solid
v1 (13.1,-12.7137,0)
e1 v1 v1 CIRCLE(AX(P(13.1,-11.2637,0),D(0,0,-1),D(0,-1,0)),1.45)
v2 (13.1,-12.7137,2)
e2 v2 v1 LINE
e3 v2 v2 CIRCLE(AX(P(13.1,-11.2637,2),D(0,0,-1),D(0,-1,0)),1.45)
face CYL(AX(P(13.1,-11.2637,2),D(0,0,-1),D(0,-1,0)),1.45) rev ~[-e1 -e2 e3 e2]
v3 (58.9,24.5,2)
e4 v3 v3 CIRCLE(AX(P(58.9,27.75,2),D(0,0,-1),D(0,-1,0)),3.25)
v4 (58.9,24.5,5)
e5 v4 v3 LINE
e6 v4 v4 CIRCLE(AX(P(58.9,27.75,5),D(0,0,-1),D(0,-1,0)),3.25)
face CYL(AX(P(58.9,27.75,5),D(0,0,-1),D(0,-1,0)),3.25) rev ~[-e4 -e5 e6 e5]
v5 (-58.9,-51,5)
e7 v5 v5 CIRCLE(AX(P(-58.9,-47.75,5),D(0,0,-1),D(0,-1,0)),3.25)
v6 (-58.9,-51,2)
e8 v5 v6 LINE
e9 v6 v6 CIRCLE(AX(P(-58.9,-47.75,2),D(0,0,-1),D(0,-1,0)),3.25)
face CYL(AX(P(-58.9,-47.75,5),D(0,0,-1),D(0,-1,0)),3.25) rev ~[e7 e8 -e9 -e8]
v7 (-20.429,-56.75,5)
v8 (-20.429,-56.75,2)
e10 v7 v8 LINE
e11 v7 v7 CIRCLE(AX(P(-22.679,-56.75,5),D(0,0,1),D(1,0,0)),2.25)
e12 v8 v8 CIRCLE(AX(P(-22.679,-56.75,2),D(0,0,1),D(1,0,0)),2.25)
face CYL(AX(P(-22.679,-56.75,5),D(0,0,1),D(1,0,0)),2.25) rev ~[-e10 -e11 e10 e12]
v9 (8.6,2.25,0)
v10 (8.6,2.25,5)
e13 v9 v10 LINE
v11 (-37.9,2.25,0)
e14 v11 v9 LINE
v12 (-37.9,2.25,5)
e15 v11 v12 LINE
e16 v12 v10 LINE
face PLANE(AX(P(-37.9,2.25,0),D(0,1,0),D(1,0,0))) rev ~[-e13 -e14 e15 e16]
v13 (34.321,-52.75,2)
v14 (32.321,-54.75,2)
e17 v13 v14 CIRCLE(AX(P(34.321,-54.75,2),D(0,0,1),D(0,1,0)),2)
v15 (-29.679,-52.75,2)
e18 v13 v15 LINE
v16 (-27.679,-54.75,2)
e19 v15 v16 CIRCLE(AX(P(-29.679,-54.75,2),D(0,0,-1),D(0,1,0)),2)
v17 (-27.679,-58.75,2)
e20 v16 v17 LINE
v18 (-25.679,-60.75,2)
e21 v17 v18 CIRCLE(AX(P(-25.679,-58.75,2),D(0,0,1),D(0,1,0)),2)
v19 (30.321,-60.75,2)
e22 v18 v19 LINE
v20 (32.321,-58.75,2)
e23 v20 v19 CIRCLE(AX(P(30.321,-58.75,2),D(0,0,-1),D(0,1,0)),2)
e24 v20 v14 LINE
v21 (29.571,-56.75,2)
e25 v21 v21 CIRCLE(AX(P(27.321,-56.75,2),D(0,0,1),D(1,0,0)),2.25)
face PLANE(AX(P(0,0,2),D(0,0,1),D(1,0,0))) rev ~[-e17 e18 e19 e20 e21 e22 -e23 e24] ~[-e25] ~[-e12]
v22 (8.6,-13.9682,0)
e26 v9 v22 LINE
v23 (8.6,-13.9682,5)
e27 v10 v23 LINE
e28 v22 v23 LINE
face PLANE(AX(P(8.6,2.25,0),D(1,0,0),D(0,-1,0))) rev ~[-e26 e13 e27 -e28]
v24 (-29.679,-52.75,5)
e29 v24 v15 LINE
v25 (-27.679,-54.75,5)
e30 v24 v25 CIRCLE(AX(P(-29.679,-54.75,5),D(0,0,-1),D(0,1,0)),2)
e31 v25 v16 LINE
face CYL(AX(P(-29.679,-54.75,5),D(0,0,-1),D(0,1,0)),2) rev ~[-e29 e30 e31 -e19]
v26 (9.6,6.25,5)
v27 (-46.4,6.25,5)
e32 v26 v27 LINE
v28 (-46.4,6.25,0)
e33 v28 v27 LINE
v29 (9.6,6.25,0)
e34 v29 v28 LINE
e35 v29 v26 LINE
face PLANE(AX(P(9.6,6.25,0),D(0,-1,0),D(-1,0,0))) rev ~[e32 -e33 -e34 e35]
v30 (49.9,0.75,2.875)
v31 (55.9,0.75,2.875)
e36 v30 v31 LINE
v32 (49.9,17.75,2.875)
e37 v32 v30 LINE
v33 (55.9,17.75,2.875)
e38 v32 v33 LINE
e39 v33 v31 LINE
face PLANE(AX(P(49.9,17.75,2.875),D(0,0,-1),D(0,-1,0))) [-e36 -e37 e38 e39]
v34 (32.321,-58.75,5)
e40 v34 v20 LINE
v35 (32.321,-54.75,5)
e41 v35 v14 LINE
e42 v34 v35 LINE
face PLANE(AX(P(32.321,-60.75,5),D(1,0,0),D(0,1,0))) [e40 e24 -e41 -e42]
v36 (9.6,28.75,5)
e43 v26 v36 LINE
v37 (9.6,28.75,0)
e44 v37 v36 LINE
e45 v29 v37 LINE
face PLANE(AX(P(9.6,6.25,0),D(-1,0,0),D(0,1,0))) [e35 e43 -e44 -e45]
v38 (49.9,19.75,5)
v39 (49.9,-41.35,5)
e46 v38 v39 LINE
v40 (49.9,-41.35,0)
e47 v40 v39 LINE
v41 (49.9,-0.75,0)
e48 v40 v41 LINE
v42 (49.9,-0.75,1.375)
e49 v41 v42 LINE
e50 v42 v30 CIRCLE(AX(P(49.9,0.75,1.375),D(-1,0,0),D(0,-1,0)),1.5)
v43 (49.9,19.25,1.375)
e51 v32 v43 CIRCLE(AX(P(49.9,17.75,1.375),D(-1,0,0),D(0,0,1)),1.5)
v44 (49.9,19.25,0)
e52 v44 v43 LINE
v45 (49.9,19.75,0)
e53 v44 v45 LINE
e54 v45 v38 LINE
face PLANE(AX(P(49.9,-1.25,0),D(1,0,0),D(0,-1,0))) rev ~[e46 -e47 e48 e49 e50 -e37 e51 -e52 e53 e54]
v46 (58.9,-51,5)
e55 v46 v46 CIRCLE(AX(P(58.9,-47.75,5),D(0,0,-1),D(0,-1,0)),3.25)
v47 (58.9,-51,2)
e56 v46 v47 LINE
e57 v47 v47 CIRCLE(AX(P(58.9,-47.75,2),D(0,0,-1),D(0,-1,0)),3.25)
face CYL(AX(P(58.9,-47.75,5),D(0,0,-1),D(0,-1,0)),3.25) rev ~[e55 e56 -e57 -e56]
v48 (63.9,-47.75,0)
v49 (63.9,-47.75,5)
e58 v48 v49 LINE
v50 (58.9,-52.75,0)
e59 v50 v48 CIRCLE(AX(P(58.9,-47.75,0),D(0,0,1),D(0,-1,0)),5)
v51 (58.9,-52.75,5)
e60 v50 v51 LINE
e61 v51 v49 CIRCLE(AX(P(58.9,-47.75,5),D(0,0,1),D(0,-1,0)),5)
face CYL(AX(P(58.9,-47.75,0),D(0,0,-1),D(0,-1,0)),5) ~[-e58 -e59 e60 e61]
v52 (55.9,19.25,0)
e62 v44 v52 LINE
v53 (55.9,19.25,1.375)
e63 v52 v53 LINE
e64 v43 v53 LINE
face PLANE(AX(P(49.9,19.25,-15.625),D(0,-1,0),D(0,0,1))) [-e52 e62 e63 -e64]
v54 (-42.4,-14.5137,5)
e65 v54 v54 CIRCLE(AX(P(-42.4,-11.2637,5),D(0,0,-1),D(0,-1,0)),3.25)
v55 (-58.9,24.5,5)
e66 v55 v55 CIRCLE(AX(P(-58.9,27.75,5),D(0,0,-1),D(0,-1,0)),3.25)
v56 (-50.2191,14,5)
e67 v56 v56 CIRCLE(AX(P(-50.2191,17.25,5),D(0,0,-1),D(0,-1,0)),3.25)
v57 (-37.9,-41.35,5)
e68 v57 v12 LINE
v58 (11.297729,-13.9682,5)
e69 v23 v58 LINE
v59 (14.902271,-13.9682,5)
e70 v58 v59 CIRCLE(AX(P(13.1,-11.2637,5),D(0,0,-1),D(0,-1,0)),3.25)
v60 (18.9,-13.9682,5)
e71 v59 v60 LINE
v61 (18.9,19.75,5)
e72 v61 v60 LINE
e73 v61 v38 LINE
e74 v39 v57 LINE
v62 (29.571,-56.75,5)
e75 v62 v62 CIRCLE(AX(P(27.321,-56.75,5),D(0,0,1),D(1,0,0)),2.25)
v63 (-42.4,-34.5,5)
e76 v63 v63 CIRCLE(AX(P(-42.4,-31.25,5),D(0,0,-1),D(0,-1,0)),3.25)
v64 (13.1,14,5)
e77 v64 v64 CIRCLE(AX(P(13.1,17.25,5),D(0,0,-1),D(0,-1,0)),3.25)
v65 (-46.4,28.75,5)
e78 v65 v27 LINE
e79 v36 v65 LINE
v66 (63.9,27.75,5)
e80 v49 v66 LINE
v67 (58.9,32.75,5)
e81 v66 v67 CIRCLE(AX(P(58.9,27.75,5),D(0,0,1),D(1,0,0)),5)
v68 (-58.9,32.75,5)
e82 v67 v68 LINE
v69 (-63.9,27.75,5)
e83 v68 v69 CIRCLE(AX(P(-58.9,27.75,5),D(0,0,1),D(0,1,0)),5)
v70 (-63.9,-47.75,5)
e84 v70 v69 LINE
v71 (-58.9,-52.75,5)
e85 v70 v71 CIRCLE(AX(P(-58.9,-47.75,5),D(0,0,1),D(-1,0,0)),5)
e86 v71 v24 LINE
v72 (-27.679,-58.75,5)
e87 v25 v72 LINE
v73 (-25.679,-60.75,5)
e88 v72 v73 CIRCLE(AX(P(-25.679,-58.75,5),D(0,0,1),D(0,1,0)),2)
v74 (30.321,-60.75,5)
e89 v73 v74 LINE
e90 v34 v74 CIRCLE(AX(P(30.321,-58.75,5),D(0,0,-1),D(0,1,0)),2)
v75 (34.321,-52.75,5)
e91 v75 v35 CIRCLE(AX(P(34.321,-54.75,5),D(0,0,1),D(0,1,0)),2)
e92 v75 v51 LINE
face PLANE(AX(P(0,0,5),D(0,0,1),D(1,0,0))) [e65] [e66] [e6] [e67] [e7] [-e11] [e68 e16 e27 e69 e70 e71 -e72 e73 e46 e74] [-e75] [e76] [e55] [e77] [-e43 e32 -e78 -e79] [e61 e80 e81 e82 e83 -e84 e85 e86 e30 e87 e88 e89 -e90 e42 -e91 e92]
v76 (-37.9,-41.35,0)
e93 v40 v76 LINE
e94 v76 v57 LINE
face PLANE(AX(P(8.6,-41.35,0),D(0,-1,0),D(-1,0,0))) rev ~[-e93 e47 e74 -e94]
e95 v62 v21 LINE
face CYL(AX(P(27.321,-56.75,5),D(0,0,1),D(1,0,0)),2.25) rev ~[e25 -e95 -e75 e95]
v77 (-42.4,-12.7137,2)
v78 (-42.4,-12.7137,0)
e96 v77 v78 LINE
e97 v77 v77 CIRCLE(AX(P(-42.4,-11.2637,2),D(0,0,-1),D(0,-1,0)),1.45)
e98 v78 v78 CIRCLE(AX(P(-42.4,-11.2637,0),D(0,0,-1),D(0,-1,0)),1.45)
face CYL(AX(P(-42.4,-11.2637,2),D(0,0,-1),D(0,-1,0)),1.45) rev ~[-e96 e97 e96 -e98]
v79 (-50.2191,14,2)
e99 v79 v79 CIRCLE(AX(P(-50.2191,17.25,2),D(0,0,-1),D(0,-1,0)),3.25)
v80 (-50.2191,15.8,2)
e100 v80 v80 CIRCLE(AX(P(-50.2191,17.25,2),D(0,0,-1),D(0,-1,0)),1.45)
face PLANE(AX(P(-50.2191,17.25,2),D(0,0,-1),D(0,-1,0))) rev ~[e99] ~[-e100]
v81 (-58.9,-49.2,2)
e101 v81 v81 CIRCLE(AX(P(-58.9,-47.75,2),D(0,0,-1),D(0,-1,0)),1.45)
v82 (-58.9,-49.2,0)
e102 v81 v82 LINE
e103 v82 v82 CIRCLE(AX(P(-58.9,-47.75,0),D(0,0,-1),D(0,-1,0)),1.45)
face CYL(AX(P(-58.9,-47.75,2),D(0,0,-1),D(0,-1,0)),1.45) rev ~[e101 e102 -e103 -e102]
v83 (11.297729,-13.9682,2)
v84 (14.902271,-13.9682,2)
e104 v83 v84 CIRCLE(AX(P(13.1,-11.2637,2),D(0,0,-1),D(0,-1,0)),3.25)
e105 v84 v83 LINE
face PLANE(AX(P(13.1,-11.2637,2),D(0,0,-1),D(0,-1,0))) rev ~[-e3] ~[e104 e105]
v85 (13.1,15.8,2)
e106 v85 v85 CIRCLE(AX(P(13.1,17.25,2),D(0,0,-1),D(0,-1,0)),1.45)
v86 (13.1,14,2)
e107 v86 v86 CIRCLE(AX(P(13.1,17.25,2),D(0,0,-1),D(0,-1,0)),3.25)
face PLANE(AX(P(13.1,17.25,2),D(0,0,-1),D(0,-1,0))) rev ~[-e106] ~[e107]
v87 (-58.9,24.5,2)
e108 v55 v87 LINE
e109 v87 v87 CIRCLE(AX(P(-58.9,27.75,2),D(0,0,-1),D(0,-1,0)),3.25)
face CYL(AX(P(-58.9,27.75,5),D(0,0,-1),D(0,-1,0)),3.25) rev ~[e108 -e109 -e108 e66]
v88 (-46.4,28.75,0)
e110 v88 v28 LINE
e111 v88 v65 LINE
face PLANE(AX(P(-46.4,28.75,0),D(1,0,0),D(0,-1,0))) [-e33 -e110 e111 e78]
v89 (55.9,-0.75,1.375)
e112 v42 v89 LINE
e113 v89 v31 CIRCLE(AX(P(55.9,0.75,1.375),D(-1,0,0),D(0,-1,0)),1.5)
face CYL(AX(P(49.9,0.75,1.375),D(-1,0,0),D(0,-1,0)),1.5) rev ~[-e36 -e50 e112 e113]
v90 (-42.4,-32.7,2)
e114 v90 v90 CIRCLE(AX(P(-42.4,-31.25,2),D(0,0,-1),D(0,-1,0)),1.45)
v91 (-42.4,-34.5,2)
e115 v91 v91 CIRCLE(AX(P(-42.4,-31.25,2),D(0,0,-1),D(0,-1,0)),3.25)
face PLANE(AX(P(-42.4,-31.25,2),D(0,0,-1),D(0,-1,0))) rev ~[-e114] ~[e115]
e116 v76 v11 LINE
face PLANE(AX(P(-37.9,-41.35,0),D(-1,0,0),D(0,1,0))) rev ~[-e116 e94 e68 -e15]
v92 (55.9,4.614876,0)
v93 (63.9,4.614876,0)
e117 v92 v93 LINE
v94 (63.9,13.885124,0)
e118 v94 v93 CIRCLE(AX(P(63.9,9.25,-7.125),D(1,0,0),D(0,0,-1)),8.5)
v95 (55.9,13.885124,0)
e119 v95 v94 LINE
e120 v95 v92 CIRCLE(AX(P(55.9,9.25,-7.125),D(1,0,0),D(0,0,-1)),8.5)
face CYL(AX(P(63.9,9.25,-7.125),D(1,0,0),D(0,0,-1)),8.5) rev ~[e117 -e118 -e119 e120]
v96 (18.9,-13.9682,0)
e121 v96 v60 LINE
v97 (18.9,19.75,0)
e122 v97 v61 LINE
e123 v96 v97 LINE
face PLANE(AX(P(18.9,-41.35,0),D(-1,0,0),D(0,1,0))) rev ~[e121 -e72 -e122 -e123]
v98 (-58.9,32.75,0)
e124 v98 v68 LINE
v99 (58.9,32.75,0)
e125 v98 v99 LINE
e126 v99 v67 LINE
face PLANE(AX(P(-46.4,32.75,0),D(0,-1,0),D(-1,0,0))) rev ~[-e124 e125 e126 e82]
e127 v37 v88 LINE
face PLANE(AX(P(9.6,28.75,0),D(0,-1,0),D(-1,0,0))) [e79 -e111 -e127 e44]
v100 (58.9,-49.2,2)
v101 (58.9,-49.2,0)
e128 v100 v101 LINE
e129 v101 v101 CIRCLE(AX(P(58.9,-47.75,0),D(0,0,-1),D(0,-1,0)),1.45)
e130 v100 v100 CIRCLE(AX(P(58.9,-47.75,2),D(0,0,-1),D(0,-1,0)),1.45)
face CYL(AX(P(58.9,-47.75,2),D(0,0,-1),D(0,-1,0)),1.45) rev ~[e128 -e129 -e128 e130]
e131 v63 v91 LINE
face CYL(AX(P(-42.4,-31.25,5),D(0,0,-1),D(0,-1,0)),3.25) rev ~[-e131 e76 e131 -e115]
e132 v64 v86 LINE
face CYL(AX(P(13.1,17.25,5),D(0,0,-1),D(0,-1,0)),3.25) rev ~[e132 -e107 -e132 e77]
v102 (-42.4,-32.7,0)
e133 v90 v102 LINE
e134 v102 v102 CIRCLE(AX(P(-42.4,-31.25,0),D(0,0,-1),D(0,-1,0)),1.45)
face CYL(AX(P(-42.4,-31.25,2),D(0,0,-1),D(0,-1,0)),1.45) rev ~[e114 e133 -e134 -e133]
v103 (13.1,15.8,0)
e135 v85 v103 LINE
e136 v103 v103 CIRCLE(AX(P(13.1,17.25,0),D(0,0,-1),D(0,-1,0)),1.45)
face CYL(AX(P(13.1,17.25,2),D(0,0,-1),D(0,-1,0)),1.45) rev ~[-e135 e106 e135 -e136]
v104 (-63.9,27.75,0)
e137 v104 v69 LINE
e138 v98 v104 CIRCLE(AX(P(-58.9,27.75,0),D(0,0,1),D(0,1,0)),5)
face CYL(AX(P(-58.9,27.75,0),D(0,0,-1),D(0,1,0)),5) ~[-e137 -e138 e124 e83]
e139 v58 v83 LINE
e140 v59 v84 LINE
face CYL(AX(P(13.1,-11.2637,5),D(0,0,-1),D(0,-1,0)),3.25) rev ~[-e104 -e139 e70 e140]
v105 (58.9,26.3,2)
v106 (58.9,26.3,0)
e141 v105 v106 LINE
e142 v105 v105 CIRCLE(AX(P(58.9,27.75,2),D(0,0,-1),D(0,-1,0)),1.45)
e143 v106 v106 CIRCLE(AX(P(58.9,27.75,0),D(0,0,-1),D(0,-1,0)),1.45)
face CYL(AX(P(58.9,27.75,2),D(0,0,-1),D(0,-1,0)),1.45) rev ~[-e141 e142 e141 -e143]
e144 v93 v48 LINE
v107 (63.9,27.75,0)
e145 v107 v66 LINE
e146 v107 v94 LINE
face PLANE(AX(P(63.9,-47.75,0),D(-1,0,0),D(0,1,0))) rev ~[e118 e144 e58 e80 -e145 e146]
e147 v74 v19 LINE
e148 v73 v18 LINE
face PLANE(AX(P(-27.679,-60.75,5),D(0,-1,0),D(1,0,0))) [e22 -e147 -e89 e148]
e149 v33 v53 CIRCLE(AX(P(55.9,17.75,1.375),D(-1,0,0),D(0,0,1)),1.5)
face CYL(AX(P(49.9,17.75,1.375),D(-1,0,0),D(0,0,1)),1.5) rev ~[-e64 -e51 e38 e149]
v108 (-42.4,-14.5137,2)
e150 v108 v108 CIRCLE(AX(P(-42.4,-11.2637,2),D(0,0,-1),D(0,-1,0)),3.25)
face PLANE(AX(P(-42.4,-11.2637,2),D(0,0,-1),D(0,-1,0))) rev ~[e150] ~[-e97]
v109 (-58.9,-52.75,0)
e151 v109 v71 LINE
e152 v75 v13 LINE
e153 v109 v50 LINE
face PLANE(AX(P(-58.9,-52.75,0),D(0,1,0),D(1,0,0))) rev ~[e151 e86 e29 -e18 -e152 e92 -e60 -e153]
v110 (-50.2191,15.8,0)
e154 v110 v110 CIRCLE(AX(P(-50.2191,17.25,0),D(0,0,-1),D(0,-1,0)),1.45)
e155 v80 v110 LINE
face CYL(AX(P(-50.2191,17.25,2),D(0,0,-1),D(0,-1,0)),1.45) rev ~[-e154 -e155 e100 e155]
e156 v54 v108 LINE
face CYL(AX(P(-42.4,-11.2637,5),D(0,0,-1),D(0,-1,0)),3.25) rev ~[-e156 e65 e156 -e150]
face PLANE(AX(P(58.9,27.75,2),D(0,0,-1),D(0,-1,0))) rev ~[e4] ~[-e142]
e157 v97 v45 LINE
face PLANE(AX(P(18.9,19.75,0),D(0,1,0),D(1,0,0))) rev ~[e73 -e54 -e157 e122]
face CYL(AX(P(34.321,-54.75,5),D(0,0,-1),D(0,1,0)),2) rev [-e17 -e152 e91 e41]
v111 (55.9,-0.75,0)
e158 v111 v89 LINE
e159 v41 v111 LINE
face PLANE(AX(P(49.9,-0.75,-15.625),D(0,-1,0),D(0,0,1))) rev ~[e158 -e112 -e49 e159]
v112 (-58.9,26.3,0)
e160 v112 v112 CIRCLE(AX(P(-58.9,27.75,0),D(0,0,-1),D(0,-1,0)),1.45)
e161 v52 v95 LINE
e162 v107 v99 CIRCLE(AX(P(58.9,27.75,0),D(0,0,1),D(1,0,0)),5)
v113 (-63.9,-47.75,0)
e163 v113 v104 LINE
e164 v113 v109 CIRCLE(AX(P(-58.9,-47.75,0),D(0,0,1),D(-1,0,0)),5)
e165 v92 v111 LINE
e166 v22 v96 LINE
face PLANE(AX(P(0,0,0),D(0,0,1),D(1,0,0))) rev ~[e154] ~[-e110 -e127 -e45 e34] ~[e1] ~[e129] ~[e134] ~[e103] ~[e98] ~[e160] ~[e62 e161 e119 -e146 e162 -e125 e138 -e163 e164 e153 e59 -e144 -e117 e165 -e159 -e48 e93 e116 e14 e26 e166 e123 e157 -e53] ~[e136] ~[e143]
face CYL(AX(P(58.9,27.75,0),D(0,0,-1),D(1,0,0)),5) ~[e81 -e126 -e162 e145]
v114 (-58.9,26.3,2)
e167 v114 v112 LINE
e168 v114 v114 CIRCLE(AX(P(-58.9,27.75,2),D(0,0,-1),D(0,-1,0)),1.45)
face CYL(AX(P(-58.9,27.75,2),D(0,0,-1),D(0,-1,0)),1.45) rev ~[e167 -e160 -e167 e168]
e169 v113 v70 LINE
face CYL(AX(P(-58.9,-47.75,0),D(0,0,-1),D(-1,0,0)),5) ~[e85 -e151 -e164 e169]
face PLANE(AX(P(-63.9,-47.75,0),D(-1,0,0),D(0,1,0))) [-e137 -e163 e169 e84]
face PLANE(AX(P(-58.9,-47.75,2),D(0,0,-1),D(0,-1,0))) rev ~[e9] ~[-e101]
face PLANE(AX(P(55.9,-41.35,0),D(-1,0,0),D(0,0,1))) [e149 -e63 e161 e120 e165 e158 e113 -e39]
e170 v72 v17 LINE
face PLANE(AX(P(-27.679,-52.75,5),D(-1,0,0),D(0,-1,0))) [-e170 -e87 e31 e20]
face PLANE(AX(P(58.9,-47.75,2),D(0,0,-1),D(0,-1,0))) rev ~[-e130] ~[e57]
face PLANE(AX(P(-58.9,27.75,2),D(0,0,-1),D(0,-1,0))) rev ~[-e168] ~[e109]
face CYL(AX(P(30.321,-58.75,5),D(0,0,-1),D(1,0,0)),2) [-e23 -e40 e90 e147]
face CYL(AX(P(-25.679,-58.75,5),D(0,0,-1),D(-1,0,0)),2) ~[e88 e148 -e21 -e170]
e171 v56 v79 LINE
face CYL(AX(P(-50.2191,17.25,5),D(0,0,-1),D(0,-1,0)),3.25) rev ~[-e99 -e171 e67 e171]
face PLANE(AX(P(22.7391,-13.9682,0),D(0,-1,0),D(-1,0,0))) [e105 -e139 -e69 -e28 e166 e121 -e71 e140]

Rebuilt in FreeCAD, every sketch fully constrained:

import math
import FreeCAD as App
import Part
import Sketcher

V = App.Vector


def edges_at(feature, points):
    """Names of the edges that pass closest to the given points."""
    edges = feature.Shape.Edges
    near = lambda p: min(range(len(edges)), key=lambda i: edges[i].distToShape(Part.Vertex(*p))[0])
    return sorted({f"Edge{near(p) + 1}" for p in points})

doc = App.newDocument("Part")
body = doc.addObject("PartDesign::Body", "Body")

# Sketch on XY plane
sketch1 = body.newObject("Sketcher::SketchObject", "Sketch")
sketch1.AttachmentSupport = (doc.getObject("XY_Plane"), [""])
sketch1.MapMode = "FlatFace"
sketch1.addGeometry(Part.LineSegment(V(63.9, -47.8, 0), V(63.9, 27.8, 0)), False)
sketch1.addGeometry(Part.ArcOfCircle(Part.Circle(V(58.9, 27.8, 0), V(0, 0, 1), 5), math.radians(0), math.radians(90)), False)
sketch1.addGeometry(Part.LineSegment(V(58.9, 32.8, 0), V(-58.9, 32.8, 0)), False)
sketch1.addGeometry(Part.ArcOfCircle(Part.Circle(V(-58.9, 27.8, 0), V(0, 0, 1), 5), math.radians(90), math.radians(180)), False)
sketch1.addGeometry(Part.LineSegment(V(-63.9, 27.8, 0), V(-63.9, -47.8, 0)), False)
sketch1.addGeometry(Part.ArcOfCircle(Part.Circle(V(-58.9, -47.8, 0), V(0, 0, 1), 5), math.radians(180), math.radians(270)), False)
sketch1.addGeometry(Part.LineSegment(V(-58.9, -52.8, 0), V(58.9, -52.8, 0)), False)
sketch1.addGeometry(Part.ArcOfCircle(Part.Circle(V(58.9, -47.8, 0), V(0, 0, 1), 5), math.radians(-90), math.radians(0)), False)
sketch1.addGeometry(Part.LineSegment(V(18.9, -41.4, 0), V(18.9, 19.8, 0)), False)
sketch1.addGeometry(Part.LineSegment(V(18.9, 19.8, 0), V(49.9, 19.8, 0)), False)
sketch1.addGeometry(Part.LineSegment(V(49.9, 19.8, 0), V(49.9, -41.4, 0)), False)
sketch1.addGeometry(Part.LineSegment(V(49.9, -41.4, 0), V(18.9, -41.4, 0)), False)
sketch1.addGeometry(Part.LineSegment(V(-46.4, 6.2, 0), V(-46.4, 28.8, 0)), False)
sketch1.addGeometry(Part.LineSegment(V(-46.4, 28.8, 0), V(9.6, 28.8, 0)), False)
sketch1.addGeometry(Part.LineSegment(V(9.6, 28.8, 0), V(9.6, 6.2, 0)), False)
sketch1.addGeometry(Part.LineSegment(V(9.6, 6.2, 0), V(-46.4, 6.2, 0)), False)
sketch1.addGeometry(Part.LineSegment(V(-37.9, -41.4, 0), V(-37.9, 2.2, 0)), False)
sketch1.addGeometry(Part.LineSegment(V(-37.9, 2.2, 0), V(8.6, 2.2, 0)), False)
sketch1.addGeometry(Part.LineSegment(V(8.6, 2.2, 0), V(8.6, -41.4, 0)), False)
sketch1.addGeometry(Part.LineSegment(V(8.6, -41.4, 0), V(-37.9, -41.4, 0)), False)
sketch1.addGeometry(Part.Circle(V(-58.9, -47.8, 0), V(0, 0, 1), 1.4), False)
sketch1.addGeometry(Part.Circle(V(-42.4, -31.2, 0), V(0, 0, 1), 1.4), False)
sketch1.addGeometry(Part.Circle(V(-42.4, -11.3, 0), V(0, 0, 1), 1.4), False)
sketch1.addGeometry(Part.Circle(V(58.9, -47.8, 0), V(0, 0, 1), 1.4), False)
sketch1.addGeometry(Part.Circle(V(13.1, -11.3, 0), V(0, 0, 1), 1.4), False)
sketch1.addGeometry(Part.Circle(V(-50.2, 17.2, 0), V(0, 0, 1), 1.4), False)
sketch1.addGeometry(Part.Circle(V(-58.9, 27.8, 0), V(0, 0, 1), 1.4), False)
sketch1.addGeometry(Part.Circle(V(58.9, 27.8, 0), V(0, 0, 1), 1.4), False)
sketch1.addGeometry(Part.Circle(V(13.1, 17.2, 0), V(0, 0, 1), 1.4), False)
sketch1.addConstraint(Sketcher.Constraint("Tangent", 0, 2, 1, 1))
sketch1.addConstraint(Sketcher.Constraint("Tangent", 1, 2, 2, 1))
sketch1.addConstraint(Sketcher.Constraint("Tangent", 2, 2, 3, 1))
sketch1.addConstraint(Sketcher.Constraint("Tangent", 3, 2, 4, 1))
sketch1.addConstraint(Sketcher.Constraint("Tangent", 4, 2, 5, 1))
sketch1.addConstraint(Sketcher.Constraint("Tangent", 5, 2, 6, 1))
sketch1.addConstraint(Sketcher.Constraint("Tangent", 6, 2, 7, 1))
sketch1.addConstraint(Sketcher.Constraint("Tangent", 7, 2, 0, 1))
sketch1.addConstraint(Sketcher.Constraint("Coincident", 8, 2, 9, 1))
sketch1.addConstraint(Sketcher.Constraint("Coincident", 9, 2, 10, 1))
sketch1.addConstraint(Sketcher.Constraint("Coincident", 10, 2, 11, 1))
sketch1.addConstraint(Sketcher.Constraint("Coincident", 11, 2, 8, 1))
sketch1.addConstraint(Sketcher.Constraint("Coincident", 12, 2, 13, 1))
sketch1.addConstraint(Sketcher.Constraint("Coincident", 13, 2, 14, 1))
sketch1.addConstraint(Sketcher.Constraint("Coincident", 14, 2, 15, 1))
sketch1.addConstraint(Sketcher.Constraint("Coincident", 15, 2, 12, 1))
sketch1.addConstraint(Sketcher.Constraint("Coincident", 16, 2, 17, 1))
sketch1.addConstraint(Sketcher.Constraint("Coincident", 17, 2, 18, 1))
sketch1.addConstraint(Sketcher.Constraint("Coincident", 18, 2, 19, 1))
sketch1.addConstraint(Sketcher.Constraint("Coincident", 19, 2, 16, 1))
sketch1.addConstraint(Sketcher.Constraint("Vertical", 0))
sketch1.addConstraint(Sketcher.Constraint("Horizontal", 2))
sketch1.addConstraint(Sketcher.Constraint("Vertical", 4))
sketch1.addConstraint(Sketcher.Constraint("Horizontal", 6))
sketch1.addConstraint(Sketcher.Constraint("Vertical", 8))
sketch1.addConstraint(Sketcher.Constraint("Horizontal", 9))
sketch1.addConstraint(Sketcher.Constraint("Vertical", 10))
sketch1.addConstraint(Sketcher.Constraint("Horizontal", 11))
sketch1.addConstraint(Sketcher.Constraint("Vertical", 12))
sketch1.addConstraint(Sketcher.Constraint("Horizontal", 13))
sketch1.addConstraint(Sketcher.Constraint("Vertical", 14))
sketch1.addConstraint(Sketcher.Constraint("Horizontal", 15))
sketch1.addConstraint(Sketcher.Constraint("Vertical", 16))
sketch1.addConstraint(Sketcher.Constraint("Horizontal", 17))
sketch1.addConstraint(Sketcher.Constraint("Vertical", 18))
sketch1.addConstraint(Sketcher.Constraint("Horizontal", 19))
sketch1.addConstraint(Sketcher.Constraint("Coincident", 20, 3, 5, 3))
sketch1.addConstraint(Sketcher.Constraint("Coincident", 23, 3, 7, 3))
sketch1.addConstraint(Sketcher.Constraint("Coincident", 26, 3, 3, 3))
sketch1.addConstraint(Sketcher.Constraint("Coincident", 27, 3, 1, 3))
sketch1.addConstraint(Sketcher.Constraint("Equal", 1, 3))
sketch1.addConstraint(Sketcher.Constraint("Equal", 3, 5))
sketch1.addConstraint(Sketcher.Constraint("Equal", 5, 7))
sketch1.addConstraint(Sketcher.Constraint("Equal", 20, 21))
sketch1.addConstraint(Sketcher.Constraint("Equal", 21, 22))
sketch1.addConstraint(Sketcher.Constraint("Equal", 22, 23))
sketch1.addConstraint(Sketcher.Constraint("Equal", 23, 24))
sketch1.addConstraint(Sketcher.Constraint("Equal", 24, 25))
sketch1.addConstraint(Sketcher.Constraint("Equal", 25, 26))
sketch1.addConstraint(Sketcher.Constraint("Equal", 26, 27))
sketch1.addConstraint(Sketcher.Constraint("Equal", 27, 28))
sketch1.addConstraint(Sketcher.Constraint("Horizontal", 22, 3, 24, 3))
sketch1.addConstraint(Sketcher.Constraint("Horizontal", 25, 3, 28, 3))
sketch1.addConstraint(Sketcher.Constraint("Horizontal", 11, 2, 18, 2))
sketch1.addConstraint(Sketcher.Constraint("Vertical", 21, 3, 22, 3))
sketch1.addConstraint(Sketcher.Constraint("Vertical", 24, 3, 28, 3))
sketch1.addConstraint(Sketcher.Constraint("Diameter", 20, 2.8))
sketch1.addConstraint(Sketcher.Constraint("Radius", 1, 5.0))
sketch1.addConstraint(Sketcher.Constraint("DistanceY", 12, 2, 2, 2, 4.0))
sketch1.addConstraint(Sketcher.Constraint("DistanceX", 15, 2, 22, 3, 4.0))
sketch1.addConstraint(Sketcher.Constraint("DistanceY", 16, 2, 15, 2, 4.0))
sketch1.addConstraint(Sketcher.Constraint("DistanceX", 9, 1, 9, 2, 31.0))
sketch1.addConstraint(Sketcher.Constraint("DistanceX", 13, 1, 13, 2, 56.0))
sketch1.addConstraint(Sketcher.Constraint("DistanceX", 2, 2, 2, 1, 117.8))
sketch1.addConstraint(Sketcher.Constraint("DistanceX", 17, 1, 17, 2, 46.5))
sketch1.addConstraint(Sketcher.Constraint("DistanceY", 0, 1, 0, 2, 75.5))
sketch1.addConstraint(Sketcher.Constraint("DistanceY", 8, 1, 8, 2, 61.1))
sketch1.addConstraint(Sketcher.Constraint("DistanceY", 12, 1, 12, 2, 22.5))
sketch1.addConstraint(Sketcher.Constraint("DistanceY", 16, 1, 16, 2, 43.6))
sketch1.addConstraint(Sketcher.Constraint("DistanceY", 21, 3, 3, 3, 59.0))
sketch1.addConstraint(Sketcher.Constraint("DistanceY", 5, 3, 25, 3, 65.0))
sketch1.addConstraint(Sketcher.Constraint("DistanceX", 8, 2, 1, 3, 40.0))
sketch1.addConstraint(Sketcher.Constraint("DistanceX", 3, 3, 16, 2, 21.0))
sketch1.addConstraint(Sketcher.Constraint("DistanceX", 17, 2, 14, 2, 1.0))
sketch1.addConstraint(Sketcher.Constraint("DistanceX", -1, 1, 1, 3, 58.9))
sketch1.addConstraint(Sketcher.Constraint("DistanceX", -1, 1, 24, 3, 13.1))
sketch1.addConstraint(Sketcher.Constraint("DistanceY", -1, 1, 1, 3, 27.75))
sketch1.addConstraint(Sketcher.Constraint("DistanceX", 25, 3, -1, 1, 50.219))
sketch1.addConstraint(Sketcher.Constraint("DistanceY", 22, 3, -1, 1, 11.2637))
pad1 = body.newObject("PartDesign::Pad", "Pad")
pad1.Profile = sketch1
pad1.Length = 5

# Sketch on XY plane
sketch2 = body.newObject("Sketcher::SketchObject", "Sketch001")
sketch2.AttachmentSupport = (doc.getObject("XY_Plane"), [""])
sketch2.MapMode = "FlatFace"
sketch2.AttachmentOffset = App.Placement(V(0, 0, 5), App.Rotation())
sketch2.addGeometry(Part.LineSegment(V(32.3, -52.8, 0), V(-27.7, -52.8, 0)), False)
sketch2.addGeometry(Part.LineSegment(V(-27.7, -52.8, 0), V(-27.7, -60.8, 0)), False)
sketch2.addGeometry(Part.LineSegment(V(-27.7, -60.8, 0), V(32.3, -60.8, 0)), False)
sketch2.addGeometry(Part.LineSegment(V(32.3, -60.8, 0), V(32.3, -52.8, 0)), False)
sketch2.addGeometry(Part.Circle(V(-22.7, -56.8, 0), V(0, 0, 1), 2.2), False)
sketch2.addGeometry(Part.Circle(V(27.3, -56.8, 0), V(0, 0, 1), 2.2), False)
sketch2.addConstraint(Sketcher.Constraint("Coincident", 0, 2, 1, 1))
sketch2.addConstraint(Sketcher.Constraint("Coincident", 1, 2, 2, 1))
sketch2.addConstraint(Sketcher.Constraint("Coincident", 2, 2, 3, 1))
sketch2.addConstraint(Sketcher.Constraint("Coincident", 3, 2, 0, 1))
sketch2.addConstraint(Sketcher.Constraint("Horizontal", 0))
sketch2.addConstraint(Sketcher.Constraint("Vertical", 1))
sketch2.addConstraint(Sketcher.Constraint("Horizontal", 2))
sketch2.addConstraint(Sketcher.Constraint("Vertical", 3))
sketch2.addConstraint(Sketcher.Constraint("Equal", 4, 5))
sketch2.addConstraint(Sketcher.Constraint("Horizontal", 4, 3, 5, 3))
sketch2.addConstraint(Sketcher.Constraint("Diameter", 4, 4.5))
sketch2.addConstraint(Sketcher.Constraint("DistanceX", 0, 2, 0, 1, 60.0))
sketch2.addConstraint(Sketcher.Constraint("DistanceY", 1, 2, 1, 1, 8.0))
sketch2.addConstraint(Sketcher.Constraint("DistanceX", 4, 3, 5, 3, 50.0))
sketch2.addConstraint(Sketcher.Constraint("DistanceX", 0, 2, 4, 3, 5.0))
sketch2.addConstraint(Sketcher.Constraint("DistanceY", 4, 3, 0, 2, 4.0))
sketch2.addConstraint(Sketcher.Constraint("DistanceY", 4, 3, -1, 1, 56.75))
sketch2.addConstraint(Sketcher.Constraint("DistanceX", 4, 3, -1, 1, 22.679))
pad2 = body.newObject("PartDesign::Pad", "Pad001")
pad2.Profile = sketch2
pad2.Length = 3
pad2.Reversed = True
doc.recompute()

fillet = body.newObject("PartDesign::Fillet", "Fillet")
fillet.Base = (pad2, edges_at(pad2, [
    (32.321, -60.75, 3.5),
    (32.321, -52.75, 3.5),
    (-27.679, -52.75, 3.5),
    (-27.679, -60.75, 3.5),
]))
fillet.Radius = 2

# Sketch on XY plane
sketch3 = body.newObject("Sketcher::SketchObject", "Sketch002")
sketch3.AttachmentSupport = (doc.getObject("XY_Plane"), [""])
sketch3.MapMode = "FlatFace"
sketch3.AttachmentOffset = App.Placement(V(0, 0, 5), App.Rotation())
sketch3.addGeometry(Part.Circle(V(58.9, -47.8, 0), V(0, 0, 1), 1.4), False)
sketch3.addGeometry(Part.Circle(V(-58.9, -47.8, 0), V(0, 0, 1), 1.4), False)
sketch3.addGeometry(Part.Circle(V(-42.4, -31.2, 0), V(0, 0, 1), 1.4), False)
sketch3.addGeometry(Part.Circle(V(-42.4, -11.3, 0), V(0, 0, 1), 1.4), False)
sketch3.addGeometry(Part.Circle(V(-50.2, 17.2, 0), V(0, 0, 1), 1.4), False)
sketch3.addGeometry(Part.Circle(V(-58.9, 27.8, 0), V(0, 0, 1), 1.4), False)
sketch3.addGeometry(Part.Circle(V(13.1, -11.3, 0), V(0, 0, 1), 1.4), False)
sketch3.addGeometry(Part.Circle(V(13.1, 17.2, 0), V(0, 0, 1), 1.4), False)
sketch3.addGeometry(Part.Circle(V(58.9, 27.8, 0), V(0, 0, 1), 1.4), False)
sketch3.addConstraint(Sketcher.Constraint("Equal", 0, 1))
sketch3.addConstraint(Sketcher.Constraint("Equal", 1, 2))
sketch3.addConstraint(Sketcher.Constraint("Equal", 2, 3))
sketch3.addConstraint(Sketcher.Constraint("Equal", 3, 4))
sketch3.addConstraint(Sketcher.Constraint("Equal", 4, 5))
sketch3.addConstraint(Sketcher.Constraint("Equal", 5, 6))
sketch3.addConstraint(Sketcher.Constraint("Equal", 6, 7))
sketch3.addConstraint(Sketcher.Constraint("Equal", 7, 8))
sketch3.addConstraint(Sketcher.Constraint("Symmetric", 0, 3, 1, 3, -2))
sketch3.addConstraint(Sketcher.Constraint("Symmetric", 5, 3, 8, 3, -2))
sketch3.addConstraint(Sketcher.Constraint("Horizontal", 3, 3, 6, 3))
sketch3.addConstraint(Sketcher.Constraint("Horizontal", 4, 3, 7, 3))
sketch3.addConstraint(Sketcher.Constraint("Vertical", 2, 3, 3, 3))
sketch3.addConstraint(Sketcher.Constraint("Vertical", 1, 3, 5, 3))
sketch3.addConstraint(Sketcher.Constraint("Vertical", 6, 3, 7, 3))
sketch3.addConstraint(Sketcher.Constraint("Diameter", 0, 2.9))
sketch3.addConstraint(Sketcher.Constraint("DistanceY", 1, 3, 4, 3, 65.0))
sketch3.addConstraint(Sketcher.Constraint("DistanceY", 2, 3, 5, 3, 59.0))
sketch3.addConstraint(Sketcher.Constraint("DistanceX", 1, 3, 6, 3, 72.0))
sketch3.addConstraint(Sketcher.Constraint("DistanceX", -1, 1, 0, 3, 58.9))
sketch3.addConstraint(Sketcher.Constraint("DistanceX", 2, 3, -1, 1, 42.4))
sketch3.addConstraint(Sketcher.Constraint("DistanceY", 1, 3, 2, 3, 16.5))
sketch3.addConstraint(Sketcher.Constraint("DistanceY", 0, 3, -1, 1, 47.75))
sketch3.addConstraint(Sketcher.Constraint("DistanceX", 4, 3, -1, 1, 50.219))
sketch3.addConstraint(Sketcher.Constraint("DistanceY", 3, 3, -1, 1, 11.2637))
doc.recompute()
hole = body.newObject("PartDesign::Hole", "Hole")
hole.Profile = sketch3
hole.ThreadType = "None"
hole.Diameter = 2.9
hole.DepthType = "ThroughAll"
hole.HoleCutType = "Counterbore"
hole.HoleCutDiameter = 6.5
hole.HoleCutDepth = 3

# Sketch on YZ plane
sketch4 = body.newObject("Sketcher::SketchObject", "Sketch003")
sketch4.AttachmentSupport = (doc.getObject("YZ_Plane"), [""])
sketch4.MapMode = "FlatFace"
sketch4.AttachmentOffset = App.Placement(V(0, 0, 49.9), App.Rotation())
sketch4.addGeometry(Part.ArcOfCircle(Part.Circle(V(0.8, -15.6, 0), V(0, 0, 1), 1.5), math.radians(180), math.radians(270)), False)
sketch4.addGeometry(Part.LineSegment(V(-0.8, -15.6, 0), V(-0.8, 1.4, 0)), False)
sketch4.addGeometry(Part.ArcOfCircle(Part.Circle(V(0.8, 1.4, 0), V(0, 0, 1), 1.5), math.radians(90), math.radians(180)), False)
sketch4.addGeometry(Part.LineSegment(V(0.8, 2.9, 0), V(17.8, 2.9, 0)), False)
sketch4.addGeometry(Part.ArcOfCircle(Part.Circle(V(17.8, 1.4, 0), V(0, 0, 1), 1.5), math.radians(0), math.radians(90)), False)
sketch4.addGeometry(Part.LineSegment(V(19.2, 1.4, 0), V(19.2, -15.6, 0)), False)
sketch4.addGeometry(Part.ArcOfCircle(Part.Circle(V(17.8, -15.6, 0), V(0, 0, 1), 1.5), math.radians(-90), math.radians(0)), False)
sketch4.addGeometry(Part.LineSegment(V(17.8, -17.1, 0), V(0.8, -17.1, 0)), False)
sketch4.addConstraint(Sketcher.Constraint("Tangent", 0, 1, 1, 1))
sketch4.addConstraint(Sketcher.Constraint("Tangent", 1, 2, 2, 2))
sketch4.addConstraint(Sketcher.Constraint("Tangent", 2, 1, 3, 1))
sketch4.addConstraint(Sketcher.Constraint("Tangent", 3, 2, 4, 2))
sketch4.addConstraint(Sketcher.Constraint("Tangent", 4, 1, 5, 1))
sketch4.addConstraint(Sketcher.Constraint("Tangent", 5, 2, 6, 2))
sketch4.addConstraint(Sketcher.Constraint("Tangent", 6, 1, 7, 1))
sketch4.addConstraint(Sketcher.Constraint("Tangent", 7, 2, 0, 2))
sketch4.addConstraint(Sketcher.Constraint("Vertical", 1))
sketch4.addConstraint(Sketcher.Constraint("Horizontal", 3))
sketch4.addConstraint(Sketcher.Constraint("Vertical", 5))
sketch4.addConstraint(Sketcher.Constraint("Horizontal", 7))
sketch4.addConstraint(Sketcher.Constraint("Equal", 0, 2))
sketch4.addConstraint(Sketcher.Constraint("Equal", 2, 4))
sketch4.addConstraint(Sketcher.Constraint("Equal", 4, 6))
sketch4.addConstraint(Sketcher.Constraint("Equal", 7, 1))
sketch4.addConstraint(Sketcher.Constraint("Radius", 0, 1.5))
sketch4.addConstraint(Sketcher.Constraint("DistanceX", 3, 1, 3, 2, 17.0))
sketch4.addConstraint(Sketcher.Constraint("DistanceX", -1, 1, 0, 3, 0.75))
sketch4.addConstraint(Sketcher.Constraint("DistanceY", 0, 3, -1, 1, 15.625))
pocket1 = body.newObject("PartDesign::Pocket", "Pocket")
pocket1.Profile = sketch4
pocket1.Length = 6
pocket1.Reversed = True

# Sketch on XY plane
sketch5 = body.newObject("Sketcher::SketchObject", "Sketch004")
sketch5.AttachmentSupport = (doc.getObject("XY_Plane"), [""])
sketch5.MapMode = "FlatFace"
sketch5.addGeometry(Part.LineSegment(V(23, -41, 0), V(9, -41, 0)), False)
sketch5.addGeometry(Part.LineSegment(V(9, -41, 0), V(9, -14, 0)), False)
sketch5.addGeometry(Part.LineSegment(V(9, -14, 0), V(23, -14, 0)), False)
sketch5.addGeometry(Part.LineSegment(V(23, -14, 0), V(23, -41, 0)), False)
sketch5.addConstraint(Sketcher.Constraint("Coincident", 0, 2, 1, 1))
sketch5.addConstraint(Sketcher.Constraint("Coincident", 1, 2, 2, 1))
sketch5.addConstraint(Sketcher.Constraint("Coincident", 2, 2, 3, 1))
sketch5.addConstraint(Sketcher.Constraint("Coincident", 3, 2, 0, 1))
sketch5.addConstraint(Sketcher.Constraint("Horizontal", 0))
sketch5.addConstraint(Sketcher.Constraint("Vertical", 1))
sketch5.addConstraint(Sketcher.Constraint("Horizontal", 2))
sketch5.addConstraint(Sketcher.Constraint("Vertical", 3))
sketch5.addConstraint(Sketcher.Constraint("DistanceX", -1, 1, 0, 2, 8.6))
sketch5.addConstraint(Sketcher.Constraint("DistanceX", 0, 2, 0, 1, 14.139))
sketch5.addConstraint(Sketcher.Constraint("DistanceY", 0, 2, -1, 1, 41.35))
sketch5.addConstraint(Sketcher.Constraint("DistanceY", 1, 1, 1, 2, 27.3818))
pocket2 = body.newObject("PartDesign::Pocket", "Pocket001")
pocket2.Profile = sketch5
pocket2.Length = 10
pocket2.Reversed = True

# Sketch on YZ plane
sketch6 = body.newObject("Sketcher::SketchObject", "Sketch005")
sketch6.AttachmentSupport = (doc.getObject("YZ_Plane"), [""])
sketch6.MapMode = "FlatFace"
sketch6.AttachmentOffset = App.Placement(V(0, 0, 63.9), App.Rotation())
sketch6.addGeometry(Part.Circle(V(9, -7, 0), V(0, 0, 1), 8), False)
sketch6.addConstraint(Sketcher.Constraint("Diameter", 0, 17.0))
sketch6.addConstraint(Sketcher.Constraint("DistanceX", -1, 1, 0, 3, 9.25))
sketch6.addConstraint(Sketcher.Constraint("DistanceY", 0, 3, -1, 1, 7.125))
pocket3 = body.newObject("PartDesign::Pocket", "Pocket002")
pocket3.Profile = sketch6
pocket3.Length = 20

doc.recompute()
